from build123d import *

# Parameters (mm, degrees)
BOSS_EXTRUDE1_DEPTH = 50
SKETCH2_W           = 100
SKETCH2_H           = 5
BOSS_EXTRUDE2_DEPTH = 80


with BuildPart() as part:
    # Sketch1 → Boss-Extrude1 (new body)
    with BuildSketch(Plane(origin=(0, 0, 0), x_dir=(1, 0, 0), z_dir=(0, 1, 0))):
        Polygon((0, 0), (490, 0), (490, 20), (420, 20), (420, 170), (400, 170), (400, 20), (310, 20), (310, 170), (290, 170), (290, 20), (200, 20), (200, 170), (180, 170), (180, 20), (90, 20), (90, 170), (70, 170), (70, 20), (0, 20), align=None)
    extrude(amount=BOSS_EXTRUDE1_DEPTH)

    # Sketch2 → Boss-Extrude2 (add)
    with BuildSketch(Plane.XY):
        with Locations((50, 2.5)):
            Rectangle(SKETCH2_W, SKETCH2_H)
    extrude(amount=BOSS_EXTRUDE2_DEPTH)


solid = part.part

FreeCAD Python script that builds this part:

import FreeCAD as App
import Part
import Sketcher

V = App.Vector
Q = App.Units.Quantity


def add_polygon(sketch, points):
    """Adds a closed chain of lines whose ends are joined by coincident constraints."""
    first, n = sketch.GeometryCount, len(points)
    for a, b in zip(points, points[1:] + points[:1]):
        sketch.addGeometry(Part.LineSegment(App.Vector(*a, 0), App.Vector(*b, 0)), False)
    for i in range(n):
        sketch.addConstraint(Sketcher.Constraint("Coincident", first + i, 2, first + (i + 1) % n, 1))

doc = App.newDocument("Part")
body = doc.addObject("PartDesign::Body", "Body")

sketch1 = body.newObject("Sketcher::SketchObject", "Sketch")
sketch1.AttachmentSupport = (doc.getObject("XZ_Plane"), [""])
sketch1.MapMode = "FlatFace"
add_polygon(sketch1, [(0, 0), (490, 0), (490, -20), (420, -20), (420, -170), (400, -170), (400, -20), (310, -20), (310, -170), (290, -170), (290, -20), (200, -20), (200, -170), (180, -170), (180, -20), (90, -20), (90, -170), (70, -170), (70, -20), (0, -20)])
sketch1.addConstraint(Sketcher.Constraint("Horizontal", 0))
sketch1.addConstraint(Sketcher.Constraint("Vertical", 1))
sketch1.addConstraint(Sketcher.Constraint("Horizontal", 2))
sketch1.addConstraint(Sketcher.Constraint("Vertical", 3))
sketch1.addConstraint(Sketcher.Constraint("Horizontal", 4))
sketch1.addConstraint(Sketcher.Constraint("Vertical", 5))
sketch1.addConstraint(Sketcher.Constraint("Horizontal", 6))
sketch1.addConstraint(Sketcher.Constraint("Vertical", 7))
sketch1.addConstraint(Sketcher.Constraint("Horizontal", 8))
sketch1.addConstraint(Sketcher.Constraint("Vertical", 9))
sketch1.addConstraint(Sketcher.Constraint("Horizontal", 10))
sketch1.addConstraint(Sketcher.Constraint("Vertical", 11))
sketch1.addConstraint(Sketcher.Constraint("Horizontal", 12))
sketch1.addConstraint(Sketcher.Constraint("Vertical", 13))
sketch1.addConstraint(Sketcher.Constraint("Horizontal", 14))
sketch1.addConstraint(Sketcher.Constraint("Vertical", 15))
sketch1.addConstraint(Sketcher.Constraint("Horizontal", 16))
sketch1.addConstraint(Sketcher.Constraint("Vertical", 17))
sketch1.addConstraint(Sketcher.Constraint("Horizontal", 18))
sketch1.addConstraint(Sketcher.Constraint("Vertical", 19))
sketch1.addConstraint(Sketcher.Constraint("Coincident", 19, 2, -1, 1))
sketch1.addConstraint(Sketcher.Constraint("Horizontal", 2, 2, 5, 2))
sketch1.addConstraint(Sketcher.Constraint("Horizontal", 4, 2, 7, 2))
sketch1.addConstraint(Sketcher.Constraint("Horizontal", 6, 2, 9, 2))
sketch1.addConstraint(Sketcher.Constraint("Horizontal", 8, 2, 11, 2))
sketch1.addConstraint(Sketcher.Constraint("Horizontal", 10, 2, 13, 2))
sketch1.addConstraint(Sketcher.Constraint("Horizontal", 12, 2, 15, 2))
sketch1.addConstraint(Sketcher.Constraint("Horizontal", 14, 2, 17, 2))
sketch1.addConstraint(Sketcher.Constraint("Equal", 4, 8))
sketch1.addConstraint(Sketcher.Constraint("Equal", 6, 10))
sketch1.addConstraint(Sketcher.Constraint("Equal", 8, 12))
sketch1.addConstraint(Sketcher.Constraint("Equal", 10, 14))
sketch1.addConstraint(Sketcher.Constraint("Equal", 12, 16))
sketch1.addConstraint(Sketcher.Constraint("Equal", 2, 18))
sketch1.addConstraint(Sketcher.Constraint("Equal", 16, 1))
sketch1.addConstraint(Sketcher.Constraint("DistanceX", 0, 1, 0, 2, Q("490 mm")))
sketch1.addConstraint(Sketcher.Constraint("DistanceX", 2, 2, 2, 1, Q("70 mm")))
sketch1.addConstraint(Sketcher.Constraint("DistanceX", 4, 2, 4, 1, Q("20 mm")))
sketch1.addConstraint(Sketcher.Constraint("DistanceY", 3, 2, 3, 1, Q("150 mm")))
pad1 = body.newObject("PartDesign::Pad", "Pad")
pad1.Profile = sketch1
pad1.Length = 50
pad1.Reversed = True

sketch2 = body.newObject("Sketcher::SketchObject", "Sketch001")
sketch2.AttachmentSupport = (doc.getObject("XY_Plane"), [""])
sketch2.MapMode = "FlatFace"
add_polygon(sketch2, [(0, 5), (0, 0), (100, 0), (100, 5)])
sketch2.addConstraint(Sketcher.Constraint("Vertical", 0))
sketch2.addConstraint(Sketcher.Constraint("Horizontal", 1))
sketch2.addConstraint(Sketcher.Constraint("Vertical", 2))
sketch2.addConstraint(Sketcher.Constraint("Horizontal", 3))
sketch2.addConstraint(Sketcher.Constraint("Coincident", 0, 2, -1, 1))
sketch2.addConstraint(Sketcher.Constraint("DistanceX", 1, 1, 1, 2, Q("100 mm")))
sketch2.addConstraint(Sketcher.Constraint("DistanceY", 0, 2, 0, 1, Q("5 mm")))
pad2 = body.newObject("PartDesign::Pad", "Pad001")
pad2.Profile = sketch2
pad2.Length = 80

doc.recompute()
